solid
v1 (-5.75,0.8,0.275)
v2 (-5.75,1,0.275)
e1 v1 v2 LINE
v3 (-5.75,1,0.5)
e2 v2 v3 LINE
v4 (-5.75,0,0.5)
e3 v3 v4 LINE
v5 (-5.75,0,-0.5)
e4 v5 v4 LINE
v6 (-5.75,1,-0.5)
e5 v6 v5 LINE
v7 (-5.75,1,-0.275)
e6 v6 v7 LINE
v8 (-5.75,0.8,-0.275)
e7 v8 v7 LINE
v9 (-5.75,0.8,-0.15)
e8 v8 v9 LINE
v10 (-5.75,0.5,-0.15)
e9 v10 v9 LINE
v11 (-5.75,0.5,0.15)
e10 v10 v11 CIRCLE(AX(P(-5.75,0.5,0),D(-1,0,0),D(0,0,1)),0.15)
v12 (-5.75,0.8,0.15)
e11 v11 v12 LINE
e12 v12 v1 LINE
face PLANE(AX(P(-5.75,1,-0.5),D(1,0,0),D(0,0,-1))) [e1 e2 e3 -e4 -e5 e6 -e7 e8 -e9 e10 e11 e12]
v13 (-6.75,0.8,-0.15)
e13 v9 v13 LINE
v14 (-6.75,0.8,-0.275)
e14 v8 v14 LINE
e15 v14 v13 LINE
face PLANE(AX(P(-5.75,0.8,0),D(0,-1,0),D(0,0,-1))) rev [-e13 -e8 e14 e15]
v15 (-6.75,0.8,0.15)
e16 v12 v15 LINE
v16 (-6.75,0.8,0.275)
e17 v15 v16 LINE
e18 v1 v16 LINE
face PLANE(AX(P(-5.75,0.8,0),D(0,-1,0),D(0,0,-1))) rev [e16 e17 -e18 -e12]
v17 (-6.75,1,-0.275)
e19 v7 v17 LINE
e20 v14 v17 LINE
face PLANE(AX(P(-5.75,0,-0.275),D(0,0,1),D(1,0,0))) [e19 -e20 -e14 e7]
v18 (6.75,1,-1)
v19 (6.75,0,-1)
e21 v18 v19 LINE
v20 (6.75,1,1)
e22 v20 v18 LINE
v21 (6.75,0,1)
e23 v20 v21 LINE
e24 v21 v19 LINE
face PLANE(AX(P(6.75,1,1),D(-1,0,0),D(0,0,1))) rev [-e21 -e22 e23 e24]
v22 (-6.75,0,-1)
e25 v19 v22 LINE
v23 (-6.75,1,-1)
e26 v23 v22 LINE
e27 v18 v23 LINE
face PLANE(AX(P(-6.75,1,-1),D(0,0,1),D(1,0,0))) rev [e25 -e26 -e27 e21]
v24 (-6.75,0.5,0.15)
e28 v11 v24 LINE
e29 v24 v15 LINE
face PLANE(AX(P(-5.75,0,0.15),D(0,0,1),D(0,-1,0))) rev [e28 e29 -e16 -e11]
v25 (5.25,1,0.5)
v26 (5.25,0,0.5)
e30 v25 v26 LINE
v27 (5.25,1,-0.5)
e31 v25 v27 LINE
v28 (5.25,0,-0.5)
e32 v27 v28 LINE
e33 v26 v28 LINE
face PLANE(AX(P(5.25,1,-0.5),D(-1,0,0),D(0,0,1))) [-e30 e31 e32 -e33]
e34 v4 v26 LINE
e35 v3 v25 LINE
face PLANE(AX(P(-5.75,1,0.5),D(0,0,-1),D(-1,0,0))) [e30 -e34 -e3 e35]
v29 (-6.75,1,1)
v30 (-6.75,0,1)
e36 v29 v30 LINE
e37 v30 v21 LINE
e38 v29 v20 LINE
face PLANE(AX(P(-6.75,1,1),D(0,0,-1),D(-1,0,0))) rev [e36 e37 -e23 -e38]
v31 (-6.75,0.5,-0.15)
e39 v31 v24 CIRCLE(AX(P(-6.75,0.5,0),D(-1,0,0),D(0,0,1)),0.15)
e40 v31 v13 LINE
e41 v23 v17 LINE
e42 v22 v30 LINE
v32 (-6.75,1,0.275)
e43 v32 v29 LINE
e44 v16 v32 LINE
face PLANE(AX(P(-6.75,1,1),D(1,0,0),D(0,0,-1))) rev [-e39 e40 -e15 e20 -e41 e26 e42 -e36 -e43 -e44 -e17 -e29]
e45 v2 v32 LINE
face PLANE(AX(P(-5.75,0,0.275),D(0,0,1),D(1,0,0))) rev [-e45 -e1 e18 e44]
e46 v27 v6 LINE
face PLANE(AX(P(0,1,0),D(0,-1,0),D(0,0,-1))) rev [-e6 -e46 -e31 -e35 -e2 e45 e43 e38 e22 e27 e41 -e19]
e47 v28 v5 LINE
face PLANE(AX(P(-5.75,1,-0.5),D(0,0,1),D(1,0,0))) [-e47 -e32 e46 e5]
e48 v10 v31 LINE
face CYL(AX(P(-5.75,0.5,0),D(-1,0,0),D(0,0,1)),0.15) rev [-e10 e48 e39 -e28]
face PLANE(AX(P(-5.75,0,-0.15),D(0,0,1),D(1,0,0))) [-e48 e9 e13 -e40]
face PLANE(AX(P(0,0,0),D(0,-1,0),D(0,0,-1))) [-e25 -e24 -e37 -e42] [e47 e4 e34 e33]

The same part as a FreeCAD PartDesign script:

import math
import FreeCAD as App
import Part
import Sketcher

V = App.Vector


def add_polygon(sketch, points):
    """Adds a closed chain of lines whose ends are joined by coincident constraints."""
    first, n = sketch.GeometryCount, len(points)
    for a, b in zip(points, points[1:] + points[:1]):
        sketch.addGeometry(Part.LineSegment(App.Vector(*a, 0), App.Vector(*b, 0)), False)
    for i in range(n):
        sketch.addConstraint(Sketcher.Constraint("Coincident", first + i, 2, first + (i + 1) % n, 1))

doc = App.newDocument("Part")
body = doc.addObject("PartDesign::Body", "Body")

# Sketch on XZ plane
sketch1 = doc.addObject("Sketcher::SketchObject", "Sketch")
body.addObject(sketch1)
sketch1.AttachmentSupport = (doc.XZ_Plane, [""])
sketch1.MapMode = "FlatFace"
add_polygon(sketch1, [(-6.8, -1), (-6.8, 1), (6.8, 1), (6.8, -1)])  # lines 0-3
add_polygon(sketch1, [(5.2, 0.5), (-5.8, 0.5), (-5.8, -0.5), (5.2, -0.5)])  # lines 4-7
sketch1.addConstraint([
    Sketcher.Constraint("Vertical", 0),
    Sketcher.Constraint("Horizontal", 1),
    Sketcher.Constraint("Vertical", 2),
    Sketcher.Constraint("Horizontal", 3),
    Sketcher.Constraint("Horizontal", 4),
    Sketcher.Constraint("Vertical", 5),
    Sketcher.Constraint("Horizontal", 6),
    Sketcher.Constraint("Vertical", 7),
    Sketcher.Constraint("Symmetric", 0, 2, 2, 2, -1, 1),
    Sketcher.Constraint("DistanceX", 4, 2, 4, 1, 11.0),
    Sketcher.Constraint("DistanceY", 0, 1, 0, 2, 2.0),
    Sketcher.Constraint("DistanceY", 5, 2, 5, 1, 1.0),
    Sketcher.Constraint("DistanceX", 1, 1, 1, 2, 13.5),
    Sketcher.Constraint("DistanceX", 0, 2, 4, 2, 1.0),
    Sketcher.Constraint("DistanceY", -1, 1, 4, 2, 0.5),
])
pad1 = doc.addObject("PartDesign::Pad", "Pad")
body.addObject(pad1)
pad1.Profile = sketch1
pad1.Length = 1
pad1.Reversed = True

# Sketch on YZ plane
sketch2 = doc.addObject("Sketcher::SketchObject", "Sketch001")
body.addObject(sketch2)
sketch2.AttachmentSupport = (doc.YZ_Plane, [""])
sketch2.MapMode = "FlatFace"
sketch2.AttachmentOffset = App.Placement(V(0, 0, -6.75), App.Rotation())
sketch2.addGeometry([
    Part.LineSegment(V(0.5, 0.15, 0), V(0.8, 0.15, 0)),  # 0
    Part.LineSegment(V(0.8, 0.15, 0), V(0.8, 0.28, 0)),  # 1
    Part.LineSegment(V(0.8, 0.28, 0), V(1, 0.28, 0)),  # 2
    Part.LineSegment(V(1, 0.28, 0), V(1, -0.28, 0)),  # 3
    Part.LineSegment(V(1, -0.28, 0), V(0.8, -0.28, 0)),  # 4
    Part.LineSegment(V(0.8, -0.28, 0), V(0.8, -0.15, 0)),  # 5
    Part.LineSegment(V(0.8, -0.15, 0), V(0.5, -0.15, 0)),  # 6
    Part.ArcOfCircle(Part.Circle(V(0.5, 0, 0), V(0, 0, 1), 0.15), math.radians(90), math.radians(270)),  # 7
], False)
sketch2.addConstraint([
    Sketcher.Constraint("Coincident", 0, 2, 1, 1),
    Sketcher.Constraint("Coincident", 1, 2, 2, 1),
    Sketcher.Constraint("Coincident", 2, 2, 3, 1),
    Sketcher.Constraint("Coincident", 3, 2, 4, 1),
    Sketcher.Constraint("Coincident", 4, 2, 5, 1),
    Sketcher.Constraint("Coincident", 5, 2, 6, 1),
    Sketcher.Constraint("Tangent", 6, 2, 7, 2),
    Sketcher.Constraint("Tangent", 7, 1, 0, 1),
    Sketcher.Constraint("Horizontal", 0),
    Sketcher.Constraint("Vertical", 1),
    Sketcher.Constraint("Horizontal", 2),
    Sketcher.Constraint("Vertical", 3),
    Sketcher.Constraint("Horizontal", 4),
    Sketcher.Constraint("Vertical", 5),
    Sketcher.Constraint("Horizontal", 6),
    Sketcher.Constraint("Symmetric", 1, 2, 4, 2, -1),
    Sketcher.Constraint("PointOnObject", 7, 3, -1),
    Sketcher.Constraint("Radius", 7, 0.15),
    Sketcher.Constraint("DistanceX", 0, 1, 0, 2, 0.3),
    Sketcher.Constraint("DistanceX", 2, 1, 2, 2, 0.2),
    Sketcher.Constraint("DistanceX", -1, 1, 2, 2, 1.0),
    Sketcher.Constraint("DistanceY", 3, 2, 3, 1, 0.55),
])
pocket1 = doc.addObject("PartDesign::Pocket", "Pocket")
body.addObject(pocket1)
pocket1.Profile = sketch2
pocket1.Length = 1
pocket1.Reversed = True

doc.recompute()
